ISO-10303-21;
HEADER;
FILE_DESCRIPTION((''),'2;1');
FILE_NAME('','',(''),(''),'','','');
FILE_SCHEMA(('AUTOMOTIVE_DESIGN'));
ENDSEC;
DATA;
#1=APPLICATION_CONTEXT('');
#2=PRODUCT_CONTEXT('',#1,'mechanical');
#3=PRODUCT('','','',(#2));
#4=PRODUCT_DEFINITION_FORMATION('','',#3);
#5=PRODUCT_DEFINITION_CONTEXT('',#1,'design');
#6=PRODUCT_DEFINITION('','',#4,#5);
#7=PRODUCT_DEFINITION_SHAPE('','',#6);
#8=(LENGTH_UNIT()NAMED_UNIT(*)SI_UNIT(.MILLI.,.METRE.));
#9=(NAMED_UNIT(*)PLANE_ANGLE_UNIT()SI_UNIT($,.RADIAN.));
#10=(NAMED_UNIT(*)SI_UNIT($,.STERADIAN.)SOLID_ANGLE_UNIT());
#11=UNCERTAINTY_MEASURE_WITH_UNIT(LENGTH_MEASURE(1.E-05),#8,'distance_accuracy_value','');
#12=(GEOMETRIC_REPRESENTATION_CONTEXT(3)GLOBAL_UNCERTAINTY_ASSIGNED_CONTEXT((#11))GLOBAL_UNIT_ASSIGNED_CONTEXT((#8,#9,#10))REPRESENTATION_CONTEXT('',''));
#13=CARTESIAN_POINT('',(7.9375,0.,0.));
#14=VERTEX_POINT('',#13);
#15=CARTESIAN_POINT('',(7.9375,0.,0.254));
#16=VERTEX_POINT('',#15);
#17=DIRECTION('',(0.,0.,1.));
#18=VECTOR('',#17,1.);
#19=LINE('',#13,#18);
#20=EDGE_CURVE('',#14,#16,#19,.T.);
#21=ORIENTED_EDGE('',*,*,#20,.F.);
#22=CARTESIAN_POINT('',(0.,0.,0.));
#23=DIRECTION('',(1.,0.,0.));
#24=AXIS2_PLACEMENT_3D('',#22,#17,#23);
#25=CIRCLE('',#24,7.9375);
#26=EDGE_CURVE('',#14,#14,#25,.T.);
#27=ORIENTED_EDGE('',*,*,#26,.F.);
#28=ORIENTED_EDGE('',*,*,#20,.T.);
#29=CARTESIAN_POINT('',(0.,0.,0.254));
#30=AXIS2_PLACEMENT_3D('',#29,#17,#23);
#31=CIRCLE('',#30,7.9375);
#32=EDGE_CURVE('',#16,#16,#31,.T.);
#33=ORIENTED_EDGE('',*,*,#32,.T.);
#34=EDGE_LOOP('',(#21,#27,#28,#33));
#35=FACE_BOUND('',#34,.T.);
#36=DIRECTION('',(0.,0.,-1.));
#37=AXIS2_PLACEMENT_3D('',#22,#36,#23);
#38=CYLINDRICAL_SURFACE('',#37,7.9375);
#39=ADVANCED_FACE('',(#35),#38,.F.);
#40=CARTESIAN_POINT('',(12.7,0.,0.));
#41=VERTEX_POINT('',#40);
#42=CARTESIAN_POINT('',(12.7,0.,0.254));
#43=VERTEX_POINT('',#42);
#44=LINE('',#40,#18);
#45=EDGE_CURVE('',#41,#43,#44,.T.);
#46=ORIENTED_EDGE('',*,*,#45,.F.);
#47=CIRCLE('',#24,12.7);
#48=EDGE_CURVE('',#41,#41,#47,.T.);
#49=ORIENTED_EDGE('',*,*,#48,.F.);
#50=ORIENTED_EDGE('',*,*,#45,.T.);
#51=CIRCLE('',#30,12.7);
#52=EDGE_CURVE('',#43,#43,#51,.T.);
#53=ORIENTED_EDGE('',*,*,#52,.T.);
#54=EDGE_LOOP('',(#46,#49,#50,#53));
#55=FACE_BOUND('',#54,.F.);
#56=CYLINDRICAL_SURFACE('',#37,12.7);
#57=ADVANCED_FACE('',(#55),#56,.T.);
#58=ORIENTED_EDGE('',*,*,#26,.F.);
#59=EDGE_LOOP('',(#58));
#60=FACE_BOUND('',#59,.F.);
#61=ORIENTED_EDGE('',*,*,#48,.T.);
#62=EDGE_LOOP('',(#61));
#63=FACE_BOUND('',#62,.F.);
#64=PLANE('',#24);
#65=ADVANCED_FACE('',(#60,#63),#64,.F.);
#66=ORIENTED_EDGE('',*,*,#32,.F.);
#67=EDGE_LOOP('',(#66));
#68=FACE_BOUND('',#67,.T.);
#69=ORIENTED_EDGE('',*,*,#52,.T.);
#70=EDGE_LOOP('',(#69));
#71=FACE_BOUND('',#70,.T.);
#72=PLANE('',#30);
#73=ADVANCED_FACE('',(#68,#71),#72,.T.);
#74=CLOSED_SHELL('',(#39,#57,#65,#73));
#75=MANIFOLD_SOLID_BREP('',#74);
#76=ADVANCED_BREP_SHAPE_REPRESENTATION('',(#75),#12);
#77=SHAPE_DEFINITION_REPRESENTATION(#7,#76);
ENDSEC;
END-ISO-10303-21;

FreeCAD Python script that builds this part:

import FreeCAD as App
import Part
import Sketcher
Q = App.Units.Quantity

doc = App.newDocument("Part")
params = doc.addObject("Spreadsheet::Sheet", "Params")
for row, (alias, value) in enumerate([
    ("sketch1_diameter", "1 in"),
    ("sketch1_diameter2", "0.625 in"),
    ("pad1_length", "0.01 in"),
], start=1):
    params.set(f"A{row}", alias)
    params.set(f"B{row}", "=" + value)
    params.setAlias(f"B{row}", alias)

body = doc.addObject("PartDesign::Body", "Body")

sketch1 = doc.addObject("Sketcher::SketchObject", "Sketch")
body.addObject(sketch1)
sketch1.AttachmentSupport = (doc.XY_Plane, [""])
sketch1.MapMode = "FlatFace"
sketch1.addGeometry([
    Part.Circle(App.Vector(0, 0, 0), App.Vector(0, 0, 1), 13),
    Part.Circle(App.Vector(0, 0, 0), App.Vector(0, 0, 1), 8),
], False)
sketch1.addConstraint([
    Sketcher.Constraint("Coincident", 0, 3, -1, 1),
    Sketcher.Constraint("Coincident", 1, 3, -1, 1),
    Sketcher.Constraint("Diameter", 0, Q("1 in")),
    Sketcher.Constraint("Diameter", 1, Q("0.625 in")),
])
sketch1.setExpression("Constraints[2]", "Params.sketch1_diameter")
sketch1.setExpression("Constraints[3]", "Params.sketch1_diameter2")
pad1 = doc.addObject("PartDesign::Pad", "Pad")
body.addObject(pad1)
pad1.Profile = sketch1
pad1.setExpression("Length", "Params.pad1_length")

doc.recompute()
